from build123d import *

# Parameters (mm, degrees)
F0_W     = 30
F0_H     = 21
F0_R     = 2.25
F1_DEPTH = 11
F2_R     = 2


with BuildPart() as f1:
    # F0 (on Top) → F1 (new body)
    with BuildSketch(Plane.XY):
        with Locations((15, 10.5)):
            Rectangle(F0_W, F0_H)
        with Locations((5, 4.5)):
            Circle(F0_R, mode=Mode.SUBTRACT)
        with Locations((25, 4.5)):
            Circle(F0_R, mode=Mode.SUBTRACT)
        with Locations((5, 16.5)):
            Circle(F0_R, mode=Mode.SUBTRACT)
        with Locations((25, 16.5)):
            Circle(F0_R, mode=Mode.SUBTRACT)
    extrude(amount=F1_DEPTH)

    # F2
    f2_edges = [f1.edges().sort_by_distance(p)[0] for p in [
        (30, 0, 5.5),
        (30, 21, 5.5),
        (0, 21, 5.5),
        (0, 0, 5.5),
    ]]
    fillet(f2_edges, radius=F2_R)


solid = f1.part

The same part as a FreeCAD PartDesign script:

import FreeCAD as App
import Part
import Sketcher
from FreeCAD import Vector


def edges_at(feature, points):
    """Names of the edges that pass closest to the given points."""
    edges = feature.Shape.Edges
    near = lambda p: min(range(len(edges)), key=lambda i: edges[i].distToShape(Part.Vertex(*p))[0])
    return sorted({f"Edge{near(p) + 1}" for p in points})

doc = App.newDocument("Part")
body = doc.addObject("PartDesign::Body", "Body")

sketch1 = body.newObject("Sketcher::SketchObject", "Sketch")
sketch1.AttachmentSupport = (doc.getObject("XY_Plane"), [""])
sketch1.MapMode = "FlatFace"
sketch1.addGeometry([
    Part.LineSegment(Vector(0, 21, 0), Vector(0, 0, 0)),
    Part.LineSegment(Vector(0, 0, 0), Vector(30, 0, 0)),
    Part.LineSegment(Vector(30, 0, 0), Vector(30, 21, 0)),
    Part.LineSegment(Vector(30, 21, 0), Vector(0, 21, 0)),
    Part.Circle(Vector(5, 4.5, 0), Vector(0, 0, 1), 2.2),
    Part.Circle(Vector(25, 4.5, 0), Vector(0, 0, 1), 2.2),
    Part.Circle(Vector(5, 16.5, 0), Vector(0, 0, 1), 2.2),
    Part.Circle(Vector(25, 16.5, 0), Vector(0, 0, 1), 2.2),
], False)
sketch1.addConstraint([
    Sketcher.Constraint("Coincident", 0, 2, 1, 1),
    Sketcher.Constraint("Coincident", 1, 2, 2, 1),
    Sketcher.Constraint("Coincident", 2, 2, 3, 1),
    Sketcher.Constraint("Coincident", 3, 2, 0, 1),
    Sketcher.Constraint("Vertical", 0),
    Sketcher.Constraint("Horizontal", 1),
    Sketcher.Constraint("Vertical", 2),
    Sketcher.Constraint("Horizontal", 3),
    Sketcher.Constraint("Coincident", 0, 2, -1, 1),
    Sketcher.Constraint("Equal", 4, 5),
    Sketcher.Constraint("Equal", 5, 6),
    Sketcher.Constraint("Equal", 6, 7),
    Sketcher.Constraint("Horizontal", 4, 3, 5, 3),
    Sketcher.Constraint("Horizontal", 6, 3, 7, 3),
    Sketcher.Constraint("Vertical", 4, 3, 6, 3),
    Sketcher.Constraint("Vertical", 5, 3, 7, 3),
    Sketcher.Constraint("Diameter", 4, 4.5),
    Sketcher.Constraint("DistanceX", 1, 1, 1, 2, 30.0),
    Sketcher.Constraint("DistanceY", 0, 2, 0, 1, 21.0),
    Sketcher.Constraint("DistanceX", -1, 1, 4, 3, 5.0),
    Sketcher.Constraint("DistanceX", -1, 1, 5, 3, 25.0),
    Sketcher.Constraint("DistanceY", 4, 3, 6, 3, 12.0),
    Sketcher.Constraint("DistanceY", -1, 1, 4, 3, 4.5),
])
pad1 = body.newObject("PartDesign::Pad", "Pad")
pad1.Profile = sketch1
pad1.Length = 11
doc.recompute()

fillet = body.newObject("PartDesign::Fillet", "Fillet")
fillet.Base = (pad1, edges_at(pad1, [
    (30, 0, 5.5),
    (30, 21, 5.5),
    (0, 21, 5.5),
    (0, 0, 5.5),
]))
fillet.Radius = 2

doc.recompute()
